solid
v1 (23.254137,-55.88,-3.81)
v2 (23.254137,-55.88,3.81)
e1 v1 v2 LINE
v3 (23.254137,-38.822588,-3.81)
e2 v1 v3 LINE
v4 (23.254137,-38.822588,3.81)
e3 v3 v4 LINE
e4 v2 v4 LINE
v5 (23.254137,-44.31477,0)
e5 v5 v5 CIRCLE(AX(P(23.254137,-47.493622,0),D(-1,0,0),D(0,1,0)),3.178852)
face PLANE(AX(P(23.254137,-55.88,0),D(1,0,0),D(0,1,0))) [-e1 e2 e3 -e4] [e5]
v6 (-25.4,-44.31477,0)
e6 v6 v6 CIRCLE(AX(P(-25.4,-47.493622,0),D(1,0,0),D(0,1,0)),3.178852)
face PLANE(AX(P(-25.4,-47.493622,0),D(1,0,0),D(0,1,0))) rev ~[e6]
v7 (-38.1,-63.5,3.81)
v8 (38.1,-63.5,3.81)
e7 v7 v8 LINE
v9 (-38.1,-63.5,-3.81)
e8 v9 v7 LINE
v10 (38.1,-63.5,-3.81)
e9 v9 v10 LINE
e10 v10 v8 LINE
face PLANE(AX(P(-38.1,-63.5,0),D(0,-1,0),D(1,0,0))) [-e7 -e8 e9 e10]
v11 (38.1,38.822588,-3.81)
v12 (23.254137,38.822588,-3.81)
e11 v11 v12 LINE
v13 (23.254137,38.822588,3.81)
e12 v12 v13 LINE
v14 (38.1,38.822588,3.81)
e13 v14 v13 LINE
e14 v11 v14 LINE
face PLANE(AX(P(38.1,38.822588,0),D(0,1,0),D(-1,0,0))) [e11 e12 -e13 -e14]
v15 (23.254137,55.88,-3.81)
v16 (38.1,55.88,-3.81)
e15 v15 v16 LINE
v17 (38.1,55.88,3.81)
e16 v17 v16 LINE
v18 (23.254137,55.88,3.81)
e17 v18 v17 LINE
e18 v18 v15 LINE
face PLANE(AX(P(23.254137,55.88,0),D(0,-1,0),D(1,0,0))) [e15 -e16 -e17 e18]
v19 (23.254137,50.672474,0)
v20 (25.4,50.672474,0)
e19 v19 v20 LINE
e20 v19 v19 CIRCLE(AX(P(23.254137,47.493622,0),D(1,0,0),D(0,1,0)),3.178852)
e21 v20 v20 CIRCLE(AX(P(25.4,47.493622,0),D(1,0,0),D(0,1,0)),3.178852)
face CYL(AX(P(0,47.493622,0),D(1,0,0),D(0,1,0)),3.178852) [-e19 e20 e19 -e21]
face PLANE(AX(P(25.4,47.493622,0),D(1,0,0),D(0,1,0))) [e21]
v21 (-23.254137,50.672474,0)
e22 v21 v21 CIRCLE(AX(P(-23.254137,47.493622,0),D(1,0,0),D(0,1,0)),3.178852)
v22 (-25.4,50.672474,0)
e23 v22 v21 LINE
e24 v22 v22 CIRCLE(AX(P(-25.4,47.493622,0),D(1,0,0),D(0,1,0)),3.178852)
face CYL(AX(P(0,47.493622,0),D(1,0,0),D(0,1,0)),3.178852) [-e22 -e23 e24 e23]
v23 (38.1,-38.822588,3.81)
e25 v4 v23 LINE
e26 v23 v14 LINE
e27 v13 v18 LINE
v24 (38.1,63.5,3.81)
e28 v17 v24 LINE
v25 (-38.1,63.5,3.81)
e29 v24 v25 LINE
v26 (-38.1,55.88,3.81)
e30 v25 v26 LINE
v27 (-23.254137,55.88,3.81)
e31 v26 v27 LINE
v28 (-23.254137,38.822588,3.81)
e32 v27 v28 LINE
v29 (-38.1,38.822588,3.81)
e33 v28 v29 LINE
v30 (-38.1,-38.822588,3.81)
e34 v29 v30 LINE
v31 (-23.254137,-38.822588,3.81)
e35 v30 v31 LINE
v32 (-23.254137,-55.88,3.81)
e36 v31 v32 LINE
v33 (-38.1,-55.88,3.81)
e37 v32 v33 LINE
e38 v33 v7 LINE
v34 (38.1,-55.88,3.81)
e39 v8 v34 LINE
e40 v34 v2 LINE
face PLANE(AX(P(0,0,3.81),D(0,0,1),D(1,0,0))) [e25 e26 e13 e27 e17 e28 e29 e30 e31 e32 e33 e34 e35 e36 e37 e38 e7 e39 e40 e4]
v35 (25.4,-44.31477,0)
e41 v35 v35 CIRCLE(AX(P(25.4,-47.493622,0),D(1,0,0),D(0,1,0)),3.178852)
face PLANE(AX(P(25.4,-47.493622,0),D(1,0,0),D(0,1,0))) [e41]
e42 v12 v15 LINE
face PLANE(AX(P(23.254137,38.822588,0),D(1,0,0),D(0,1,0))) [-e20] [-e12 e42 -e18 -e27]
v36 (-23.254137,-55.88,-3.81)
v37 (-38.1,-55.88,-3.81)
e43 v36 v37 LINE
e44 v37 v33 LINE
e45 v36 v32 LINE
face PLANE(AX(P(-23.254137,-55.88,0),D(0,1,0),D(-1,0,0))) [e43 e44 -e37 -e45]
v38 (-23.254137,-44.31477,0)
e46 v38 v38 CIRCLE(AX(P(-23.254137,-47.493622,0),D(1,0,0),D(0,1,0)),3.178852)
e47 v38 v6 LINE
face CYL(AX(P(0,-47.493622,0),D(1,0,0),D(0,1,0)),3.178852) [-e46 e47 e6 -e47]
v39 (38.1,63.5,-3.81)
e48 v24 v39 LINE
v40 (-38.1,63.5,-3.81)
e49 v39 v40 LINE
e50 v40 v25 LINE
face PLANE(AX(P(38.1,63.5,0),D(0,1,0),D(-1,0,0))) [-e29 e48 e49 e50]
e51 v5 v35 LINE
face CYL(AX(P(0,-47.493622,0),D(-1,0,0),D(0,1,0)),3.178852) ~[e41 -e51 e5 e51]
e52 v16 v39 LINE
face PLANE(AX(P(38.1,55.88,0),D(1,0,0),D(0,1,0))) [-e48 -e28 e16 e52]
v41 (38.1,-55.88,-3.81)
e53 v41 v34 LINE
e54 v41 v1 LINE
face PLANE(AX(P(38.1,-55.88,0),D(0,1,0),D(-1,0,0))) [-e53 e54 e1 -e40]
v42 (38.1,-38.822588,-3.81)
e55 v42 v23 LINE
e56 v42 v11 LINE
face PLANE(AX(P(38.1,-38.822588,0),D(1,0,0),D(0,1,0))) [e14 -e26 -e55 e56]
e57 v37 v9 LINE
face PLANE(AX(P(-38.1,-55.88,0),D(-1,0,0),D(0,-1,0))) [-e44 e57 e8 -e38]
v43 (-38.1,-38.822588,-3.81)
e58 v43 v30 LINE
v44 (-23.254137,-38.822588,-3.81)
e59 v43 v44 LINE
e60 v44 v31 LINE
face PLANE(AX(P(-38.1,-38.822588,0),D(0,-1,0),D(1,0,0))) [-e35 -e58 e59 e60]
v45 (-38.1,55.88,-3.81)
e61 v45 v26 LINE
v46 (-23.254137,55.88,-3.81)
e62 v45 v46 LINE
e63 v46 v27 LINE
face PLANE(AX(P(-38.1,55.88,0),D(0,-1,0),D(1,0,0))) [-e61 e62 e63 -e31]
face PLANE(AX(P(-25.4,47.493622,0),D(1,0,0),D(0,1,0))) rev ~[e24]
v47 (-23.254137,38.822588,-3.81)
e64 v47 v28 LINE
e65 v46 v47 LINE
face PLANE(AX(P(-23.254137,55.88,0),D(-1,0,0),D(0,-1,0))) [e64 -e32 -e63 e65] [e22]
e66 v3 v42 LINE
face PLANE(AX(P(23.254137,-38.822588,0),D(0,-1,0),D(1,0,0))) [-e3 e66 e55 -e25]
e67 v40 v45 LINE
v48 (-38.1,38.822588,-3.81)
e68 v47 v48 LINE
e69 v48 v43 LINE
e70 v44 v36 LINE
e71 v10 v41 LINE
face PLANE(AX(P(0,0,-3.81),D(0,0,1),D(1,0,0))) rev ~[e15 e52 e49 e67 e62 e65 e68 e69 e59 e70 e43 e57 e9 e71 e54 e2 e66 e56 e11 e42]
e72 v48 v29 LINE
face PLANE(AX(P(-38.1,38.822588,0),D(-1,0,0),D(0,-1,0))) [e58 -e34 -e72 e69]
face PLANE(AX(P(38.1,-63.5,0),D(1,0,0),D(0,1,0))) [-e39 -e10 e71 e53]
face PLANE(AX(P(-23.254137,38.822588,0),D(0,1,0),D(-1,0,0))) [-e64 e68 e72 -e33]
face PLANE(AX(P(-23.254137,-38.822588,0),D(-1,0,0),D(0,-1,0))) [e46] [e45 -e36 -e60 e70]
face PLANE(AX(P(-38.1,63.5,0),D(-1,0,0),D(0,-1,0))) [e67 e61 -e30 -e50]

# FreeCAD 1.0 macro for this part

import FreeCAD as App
import Part
import Sketcher
from FreeCAD import Vector
Q = App.Units.Quantity

doc = App.newDocument("Part")
body = doc.addObject("PartDesign::Body", "Body")

# Sketch on XY plane
sketch1 = doc.addObject("Sketcher::SketchObject", "Sketch")
body.addObject(sketch1)
sketch1.AttachmentSupport = (doc.XY_Plane, [""])
sketch1.MapMode = "FlatFace"
sketch1.addGeometry([
    Part.LineSegment(Vector(38, 64, 0), Vector(-38, 64, 0)),  # 0
    Part.LineSegment(Vector(-38, 64, 0), Vector(-38, 56, 0)),  # 1
    Part.LineSegment(Vector(-38, 56, 0), Vector(-23, 56, 0)),  # 2
    Part.LineSegment(Vector(-23, 56, 0), Vector(-23, 39, 0)),  # 3
    Part.LineSegment(Vector(-23, 39, 0), Vector(-38, 39, 0)),  # 4
    Part.LineSegment(Vector(-38, 39, 0), Vector(-38, -39, 0)),  # 5
    Part.LineSegment(Vector(-38, -39, 0), Vector(-23, -39, 0)),  # 6
    Part.LineSegment(Vector(-23, -39, 0), Vector(-23, -56, 0)),  # 7
    Part.LineSegment(Vector(-23, -56, 0), Vector(-38, -56, 0)),  # 8
    Part.LineSegment(Vector(-38, -56, 0), Vector(-38, -64, 0)),  # 9
    Part.LineSegment(Vector(-38, -64, 0), Vector(38, -64, 0)),  # 10
    Part.LineSegment(Vector(38, -64, 0), Vector(38, -56, 0)),  # 11
    Part.LineSegment(Vector(38, -56, 0), Vector(23, -56, 0)),  # 12
    Part.LineSegment(Vector(23, -56, 0), Vector(23, -39, 0)),  # 13
    Part.LineSegment(Vector(23, -39, 0), Vector(38, -39, 0)),  # 14
    Part.LineSegment(Vector(38, -39, 0), Vector(38, 39, 0)),  # 15
    Part.LineSegment(Vector(38, 39, 0), Vector(23, 39, 0)),  # 16
    Part.LineSegment(Vector(23, 39, 0), Vector(23, 56, 0)),  # 17
    Part.LineSegment(Vector(23, 56, 0), Vector(38, 56, 0)),  # 18
    Part.LineSegment(Vector(38, 56, 0), Vector(38, 64, 0)),  # 19
], False)
sketch1.addConstraint([
    Sketcher.Constraint("Coincident", 0, 2, 1, 1),
    Sketcher.Constraint("Coincident", 1, 2, 2, 1),
    Sketcher.Constraint("Coincident", 2, 2, 3, 1),
    Sketcher.Constraint("Coincident", 3, 2, 4, 1),
    Sketcher.Constraint("Coincident", 4, 2, 5, 1),
    Sketcher.Constraint("Coincident", 5, 2, 6, 1),
    Sketcher.Constraint("Coincident", 6, 2, 7, 1),
    Sketcher.Constraint("Coincident", 7, 2, 8, 1),
    Sketcher.Constraint("Coincident", 8, 2, 9, 1),
    Sketcher.Constraint("Coincident", 9, 2, 10, 1),
    Sketcher.Constraint("Coincident", 10, 2, 11, 1),
    Sketcher.Constraint("Coincident", 11, 2, 12, 1),
    Sketcher.Constraint("Coincident", 12, 2, 13, 1),
    Sketcher.Constraint("Coincident", 13, 2, 14, 1),
    Sketcher.Constraint("Coincident", 14, 2, 15, 1),
    Sketcher.Constraint("Coincident", 15, 2, 16, 1),
    Sketcher.Constraint("Coincident", 16, 2, 17, 1),
    Sketcher.Constraint("Coincident", 17, 2, 18, 1),
    Sketcher.Constraint("Coincident", 18, 2, 19, 1),
    Sketcher.Constraint("Coincident", 19, 2, 0, 1),
    Sketcher.Constraint("Horizontal", 0),
    Sketcher.Constraint("Vertical", 1),
    Sketcher.Constraint("Horizontal", 2),
    Sketcher.Constraint("Vertical", 3),
    Sketcher.Constraint("Horizontal", 4),
    Sketcher.Constraint("Vertical", 5),
    Sketcher.Constraint("Horizontal", 6),
    Sketcher.Constraint("Vertical", 7),
    Sketcher.Constraint("Horizontal", 8),
    Sketcher.Constraint("Vertical", 9),
    Sketcher.Constraint("Horizontal", 10),
    Sketcher.Constraint("Vertical", 11),
    Sketcher.Constraint("Horizontal", 12),
    Sketcher.Constraint("Vertical", 13),
    Sketcher.Constraint("Horizontal", 14),
    Sketcher.Constraint("Vertical", 15),
    Sketcher.Constraint("Horizontal", 16),
    Sketcher.Constraint("Vertical", 17),
    Sketcher.Constraint("Horizontal", 18),
    Sketcher.Constraint("Vertical", 19),
    Sketcher.Constraint("Symmetric", 0, 2, 10, 2, -1, 1),
    Sketcher.Constraint("Symmetric", 2, 2, 12, 2, -1, 1),
    Sketcher.Constraint("Symmetric", 4, 2, 14, 2, -1, 1),
    Sketcher.Constraint("Symmetric", 6, 2, 16, 2, -1, 1),
    Sketcher.Constraint("Symmetric", 8, 2, 18, 2, -1, 1),
    Sketcher.Constraint("Symmetric", 8, 2, 11, 2, -2),
    Sketcher.Constraint("Symmetric", 6, 2, 13, 2, -2),
    Sketcher.Constraint("Vertical", 1, 2, 4, 2),
    Sketcher.Constraint("DistanceX", 0, 2, 0, 1, Q("3 in")),
    Sketcher.Constraint("DistanceY", 1, 2, 1, 1, Q("0.3 in")),
    Sketcher.Constraint("DistanceY", -1, 1, 0, 2, Q("2.5 in")),
    Sketcher.Constraint("DistanceY", 3, 2, 3, 1, Q("17.057412 mm")),
    Sketcher.Constraint("DistanceX", 2, 1, 2, 2, Q("14.845863 mm")),
])
pad1 = doc.addObject("PartDesign::Pad", "Pad")
body.addObject(pad1)
pad1.Profile = sketch1
pad1.Length = Q("0.3 in")
pad1.Midplane = True

# Sketch on YZ plane
sketch2 = doc.addObject("Sketcher::SketchObject", "Sketch001")
body.addObject(sketch2)
sketch2.AttachmentSupport = (doc.YZ_Plane, [""])
sketch2.MapMode = "FlatFace"
sketch2.addGeometry([
    Part.Circle(Vector(-47.5, 0, 0), Vector(0, 0, 1), 3.2),
    Part.Circle(Vector(47.5, 0, 0), Vector(0, 0, 1), 3.2),
], False)
sketch2.addConstraint([
    Sketcher.Constraint("Equal", 0, 1),
    Sketcher.Constraint("Symmetric", 0, 3, 1, 3, -1, 1),
    Sketcher.Constraint("PointOnObject", 0, 3, -1),
    Sketcher.Constraint("Diameter", 0, Q("6.357704 mm")),
    Sketcher.Constraint("DistanceX", 0, 3, -1, 1, Q("47.493622 mm")),
])
pad2 = doc.addObject("PartDesign::Pad", "Pad001")
body.addObject(pad2)
pad2.Profile = sketch2
pad2.Length = Q("2 in")
pad2.Midplane = True

doc.recompute()
